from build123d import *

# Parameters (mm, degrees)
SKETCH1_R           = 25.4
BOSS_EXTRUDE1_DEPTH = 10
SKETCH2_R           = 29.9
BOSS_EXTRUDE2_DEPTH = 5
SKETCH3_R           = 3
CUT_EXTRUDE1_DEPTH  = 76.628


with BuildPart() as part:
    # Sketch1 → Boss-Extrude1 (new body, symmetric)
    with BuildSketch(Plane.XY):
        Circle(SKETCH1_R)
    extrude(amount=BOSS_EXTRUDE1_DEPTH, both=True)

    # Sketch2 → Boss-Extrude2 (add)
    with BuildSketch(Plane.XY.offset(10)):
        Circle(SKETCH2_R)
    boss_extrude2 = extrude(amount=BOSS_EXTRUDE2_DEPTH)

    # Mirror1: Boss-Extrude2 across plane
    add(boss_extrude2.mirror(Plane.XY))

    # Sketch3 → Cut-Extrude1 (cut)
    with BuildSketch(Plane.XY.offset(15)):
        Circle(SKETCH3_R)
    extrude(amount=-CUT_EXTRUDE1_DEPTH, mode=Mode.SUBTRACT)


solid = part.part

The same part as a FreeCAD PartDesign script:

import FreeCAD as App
import Part
import Sketcher

doc = App.newDocument("Part")
body = doc.addObject("PartDesign::Body", "Body")

# Sketch on XY plane
sketch1 = body.newObject("Sketcher::SketchObject", "Sketch")
sketch1.AttachmentSupport = (doc.getObject("XY_Plane"), [""])
sketch1.MapMode = "FlatFace"
sketch1.addGeometry(Part.Circle(App.Vector(0, 0, 0), App.Vector(0, 0, 1), 25), False)
sketch1.addConstraint([
    Sketcher.Constraint("Coincident", 0, 3, -1, 1),
    Sketcher.Constraint("Diameter", 0, 50.8),
])
pad1 = body.newObject("PartDesign::Pad", "Pad")
pad1.Profile = sketch1
pad1.Length = 20
pad1.Midplane = True

# Sketch on XY plane
sketch2 = body.newObject("Sketcher::SketchObject", "Sketch001")
sketch2.AttachmentSupport = (doc.getObject("XY_Plane"), [""])
sketch2.MapMode = "FlatFace"
sketch2.AttachmentOffset = App.Placement(App.Vector(0, 0, 10), App.Rotation())
sketch2.addGeometry(Part.Circle(App.Vector(0, 0, 0), App.Vector(0, 0, 1), 30), False)
sketch2.addConstraint([
    Sketcher.Constraint("Coincident", 0, 3, -1, 1),
    Sketcher.Constraint("Diameter", 0, 59.8),
])
pad2 = body.newObject("PartDesign::Pad", "Pad001")
pad2.Profile = sketch2
pad2.Length = 5
doc.recompute()

mirrored = body.newObject("PartDesign::Mirrored", "Mirrored")
mirrored.Originals = [pad2]
mirrored.MirrorPlane = (doc.getObject("XY_Plane"), [""])
body.Tip = mirrored

# Sketch on XY plane
sketch3 = body.newObject("Sketcher::SketchObject", "Sketch002")
sketch3.AttachmentSupport = (doc.getObject("XY_Plane"), [""])
sketch3.MapMode = "FlatFace"
sketch3.AttachmentOffset = App.Placement(App.Vector(0, 0, 15), App.Rotation())
sketch3.addGeometry(Part.Circle(App.Vector(0, 0, 0), App.Vector(0, 0, 1), 3), False)
sketch3.addConstraint([
    Sketcher.Constraint("Coincident", 0, 3, -1, 1),
    Sketcher.Constraint("Diameter", 0, 6.0),
])
pocket1 = body.newObject("PartDesign::Pocket", "Pocket")
pocket1.Profile = sketch3
pocket1.Length = 76.628

doc.recompute()
